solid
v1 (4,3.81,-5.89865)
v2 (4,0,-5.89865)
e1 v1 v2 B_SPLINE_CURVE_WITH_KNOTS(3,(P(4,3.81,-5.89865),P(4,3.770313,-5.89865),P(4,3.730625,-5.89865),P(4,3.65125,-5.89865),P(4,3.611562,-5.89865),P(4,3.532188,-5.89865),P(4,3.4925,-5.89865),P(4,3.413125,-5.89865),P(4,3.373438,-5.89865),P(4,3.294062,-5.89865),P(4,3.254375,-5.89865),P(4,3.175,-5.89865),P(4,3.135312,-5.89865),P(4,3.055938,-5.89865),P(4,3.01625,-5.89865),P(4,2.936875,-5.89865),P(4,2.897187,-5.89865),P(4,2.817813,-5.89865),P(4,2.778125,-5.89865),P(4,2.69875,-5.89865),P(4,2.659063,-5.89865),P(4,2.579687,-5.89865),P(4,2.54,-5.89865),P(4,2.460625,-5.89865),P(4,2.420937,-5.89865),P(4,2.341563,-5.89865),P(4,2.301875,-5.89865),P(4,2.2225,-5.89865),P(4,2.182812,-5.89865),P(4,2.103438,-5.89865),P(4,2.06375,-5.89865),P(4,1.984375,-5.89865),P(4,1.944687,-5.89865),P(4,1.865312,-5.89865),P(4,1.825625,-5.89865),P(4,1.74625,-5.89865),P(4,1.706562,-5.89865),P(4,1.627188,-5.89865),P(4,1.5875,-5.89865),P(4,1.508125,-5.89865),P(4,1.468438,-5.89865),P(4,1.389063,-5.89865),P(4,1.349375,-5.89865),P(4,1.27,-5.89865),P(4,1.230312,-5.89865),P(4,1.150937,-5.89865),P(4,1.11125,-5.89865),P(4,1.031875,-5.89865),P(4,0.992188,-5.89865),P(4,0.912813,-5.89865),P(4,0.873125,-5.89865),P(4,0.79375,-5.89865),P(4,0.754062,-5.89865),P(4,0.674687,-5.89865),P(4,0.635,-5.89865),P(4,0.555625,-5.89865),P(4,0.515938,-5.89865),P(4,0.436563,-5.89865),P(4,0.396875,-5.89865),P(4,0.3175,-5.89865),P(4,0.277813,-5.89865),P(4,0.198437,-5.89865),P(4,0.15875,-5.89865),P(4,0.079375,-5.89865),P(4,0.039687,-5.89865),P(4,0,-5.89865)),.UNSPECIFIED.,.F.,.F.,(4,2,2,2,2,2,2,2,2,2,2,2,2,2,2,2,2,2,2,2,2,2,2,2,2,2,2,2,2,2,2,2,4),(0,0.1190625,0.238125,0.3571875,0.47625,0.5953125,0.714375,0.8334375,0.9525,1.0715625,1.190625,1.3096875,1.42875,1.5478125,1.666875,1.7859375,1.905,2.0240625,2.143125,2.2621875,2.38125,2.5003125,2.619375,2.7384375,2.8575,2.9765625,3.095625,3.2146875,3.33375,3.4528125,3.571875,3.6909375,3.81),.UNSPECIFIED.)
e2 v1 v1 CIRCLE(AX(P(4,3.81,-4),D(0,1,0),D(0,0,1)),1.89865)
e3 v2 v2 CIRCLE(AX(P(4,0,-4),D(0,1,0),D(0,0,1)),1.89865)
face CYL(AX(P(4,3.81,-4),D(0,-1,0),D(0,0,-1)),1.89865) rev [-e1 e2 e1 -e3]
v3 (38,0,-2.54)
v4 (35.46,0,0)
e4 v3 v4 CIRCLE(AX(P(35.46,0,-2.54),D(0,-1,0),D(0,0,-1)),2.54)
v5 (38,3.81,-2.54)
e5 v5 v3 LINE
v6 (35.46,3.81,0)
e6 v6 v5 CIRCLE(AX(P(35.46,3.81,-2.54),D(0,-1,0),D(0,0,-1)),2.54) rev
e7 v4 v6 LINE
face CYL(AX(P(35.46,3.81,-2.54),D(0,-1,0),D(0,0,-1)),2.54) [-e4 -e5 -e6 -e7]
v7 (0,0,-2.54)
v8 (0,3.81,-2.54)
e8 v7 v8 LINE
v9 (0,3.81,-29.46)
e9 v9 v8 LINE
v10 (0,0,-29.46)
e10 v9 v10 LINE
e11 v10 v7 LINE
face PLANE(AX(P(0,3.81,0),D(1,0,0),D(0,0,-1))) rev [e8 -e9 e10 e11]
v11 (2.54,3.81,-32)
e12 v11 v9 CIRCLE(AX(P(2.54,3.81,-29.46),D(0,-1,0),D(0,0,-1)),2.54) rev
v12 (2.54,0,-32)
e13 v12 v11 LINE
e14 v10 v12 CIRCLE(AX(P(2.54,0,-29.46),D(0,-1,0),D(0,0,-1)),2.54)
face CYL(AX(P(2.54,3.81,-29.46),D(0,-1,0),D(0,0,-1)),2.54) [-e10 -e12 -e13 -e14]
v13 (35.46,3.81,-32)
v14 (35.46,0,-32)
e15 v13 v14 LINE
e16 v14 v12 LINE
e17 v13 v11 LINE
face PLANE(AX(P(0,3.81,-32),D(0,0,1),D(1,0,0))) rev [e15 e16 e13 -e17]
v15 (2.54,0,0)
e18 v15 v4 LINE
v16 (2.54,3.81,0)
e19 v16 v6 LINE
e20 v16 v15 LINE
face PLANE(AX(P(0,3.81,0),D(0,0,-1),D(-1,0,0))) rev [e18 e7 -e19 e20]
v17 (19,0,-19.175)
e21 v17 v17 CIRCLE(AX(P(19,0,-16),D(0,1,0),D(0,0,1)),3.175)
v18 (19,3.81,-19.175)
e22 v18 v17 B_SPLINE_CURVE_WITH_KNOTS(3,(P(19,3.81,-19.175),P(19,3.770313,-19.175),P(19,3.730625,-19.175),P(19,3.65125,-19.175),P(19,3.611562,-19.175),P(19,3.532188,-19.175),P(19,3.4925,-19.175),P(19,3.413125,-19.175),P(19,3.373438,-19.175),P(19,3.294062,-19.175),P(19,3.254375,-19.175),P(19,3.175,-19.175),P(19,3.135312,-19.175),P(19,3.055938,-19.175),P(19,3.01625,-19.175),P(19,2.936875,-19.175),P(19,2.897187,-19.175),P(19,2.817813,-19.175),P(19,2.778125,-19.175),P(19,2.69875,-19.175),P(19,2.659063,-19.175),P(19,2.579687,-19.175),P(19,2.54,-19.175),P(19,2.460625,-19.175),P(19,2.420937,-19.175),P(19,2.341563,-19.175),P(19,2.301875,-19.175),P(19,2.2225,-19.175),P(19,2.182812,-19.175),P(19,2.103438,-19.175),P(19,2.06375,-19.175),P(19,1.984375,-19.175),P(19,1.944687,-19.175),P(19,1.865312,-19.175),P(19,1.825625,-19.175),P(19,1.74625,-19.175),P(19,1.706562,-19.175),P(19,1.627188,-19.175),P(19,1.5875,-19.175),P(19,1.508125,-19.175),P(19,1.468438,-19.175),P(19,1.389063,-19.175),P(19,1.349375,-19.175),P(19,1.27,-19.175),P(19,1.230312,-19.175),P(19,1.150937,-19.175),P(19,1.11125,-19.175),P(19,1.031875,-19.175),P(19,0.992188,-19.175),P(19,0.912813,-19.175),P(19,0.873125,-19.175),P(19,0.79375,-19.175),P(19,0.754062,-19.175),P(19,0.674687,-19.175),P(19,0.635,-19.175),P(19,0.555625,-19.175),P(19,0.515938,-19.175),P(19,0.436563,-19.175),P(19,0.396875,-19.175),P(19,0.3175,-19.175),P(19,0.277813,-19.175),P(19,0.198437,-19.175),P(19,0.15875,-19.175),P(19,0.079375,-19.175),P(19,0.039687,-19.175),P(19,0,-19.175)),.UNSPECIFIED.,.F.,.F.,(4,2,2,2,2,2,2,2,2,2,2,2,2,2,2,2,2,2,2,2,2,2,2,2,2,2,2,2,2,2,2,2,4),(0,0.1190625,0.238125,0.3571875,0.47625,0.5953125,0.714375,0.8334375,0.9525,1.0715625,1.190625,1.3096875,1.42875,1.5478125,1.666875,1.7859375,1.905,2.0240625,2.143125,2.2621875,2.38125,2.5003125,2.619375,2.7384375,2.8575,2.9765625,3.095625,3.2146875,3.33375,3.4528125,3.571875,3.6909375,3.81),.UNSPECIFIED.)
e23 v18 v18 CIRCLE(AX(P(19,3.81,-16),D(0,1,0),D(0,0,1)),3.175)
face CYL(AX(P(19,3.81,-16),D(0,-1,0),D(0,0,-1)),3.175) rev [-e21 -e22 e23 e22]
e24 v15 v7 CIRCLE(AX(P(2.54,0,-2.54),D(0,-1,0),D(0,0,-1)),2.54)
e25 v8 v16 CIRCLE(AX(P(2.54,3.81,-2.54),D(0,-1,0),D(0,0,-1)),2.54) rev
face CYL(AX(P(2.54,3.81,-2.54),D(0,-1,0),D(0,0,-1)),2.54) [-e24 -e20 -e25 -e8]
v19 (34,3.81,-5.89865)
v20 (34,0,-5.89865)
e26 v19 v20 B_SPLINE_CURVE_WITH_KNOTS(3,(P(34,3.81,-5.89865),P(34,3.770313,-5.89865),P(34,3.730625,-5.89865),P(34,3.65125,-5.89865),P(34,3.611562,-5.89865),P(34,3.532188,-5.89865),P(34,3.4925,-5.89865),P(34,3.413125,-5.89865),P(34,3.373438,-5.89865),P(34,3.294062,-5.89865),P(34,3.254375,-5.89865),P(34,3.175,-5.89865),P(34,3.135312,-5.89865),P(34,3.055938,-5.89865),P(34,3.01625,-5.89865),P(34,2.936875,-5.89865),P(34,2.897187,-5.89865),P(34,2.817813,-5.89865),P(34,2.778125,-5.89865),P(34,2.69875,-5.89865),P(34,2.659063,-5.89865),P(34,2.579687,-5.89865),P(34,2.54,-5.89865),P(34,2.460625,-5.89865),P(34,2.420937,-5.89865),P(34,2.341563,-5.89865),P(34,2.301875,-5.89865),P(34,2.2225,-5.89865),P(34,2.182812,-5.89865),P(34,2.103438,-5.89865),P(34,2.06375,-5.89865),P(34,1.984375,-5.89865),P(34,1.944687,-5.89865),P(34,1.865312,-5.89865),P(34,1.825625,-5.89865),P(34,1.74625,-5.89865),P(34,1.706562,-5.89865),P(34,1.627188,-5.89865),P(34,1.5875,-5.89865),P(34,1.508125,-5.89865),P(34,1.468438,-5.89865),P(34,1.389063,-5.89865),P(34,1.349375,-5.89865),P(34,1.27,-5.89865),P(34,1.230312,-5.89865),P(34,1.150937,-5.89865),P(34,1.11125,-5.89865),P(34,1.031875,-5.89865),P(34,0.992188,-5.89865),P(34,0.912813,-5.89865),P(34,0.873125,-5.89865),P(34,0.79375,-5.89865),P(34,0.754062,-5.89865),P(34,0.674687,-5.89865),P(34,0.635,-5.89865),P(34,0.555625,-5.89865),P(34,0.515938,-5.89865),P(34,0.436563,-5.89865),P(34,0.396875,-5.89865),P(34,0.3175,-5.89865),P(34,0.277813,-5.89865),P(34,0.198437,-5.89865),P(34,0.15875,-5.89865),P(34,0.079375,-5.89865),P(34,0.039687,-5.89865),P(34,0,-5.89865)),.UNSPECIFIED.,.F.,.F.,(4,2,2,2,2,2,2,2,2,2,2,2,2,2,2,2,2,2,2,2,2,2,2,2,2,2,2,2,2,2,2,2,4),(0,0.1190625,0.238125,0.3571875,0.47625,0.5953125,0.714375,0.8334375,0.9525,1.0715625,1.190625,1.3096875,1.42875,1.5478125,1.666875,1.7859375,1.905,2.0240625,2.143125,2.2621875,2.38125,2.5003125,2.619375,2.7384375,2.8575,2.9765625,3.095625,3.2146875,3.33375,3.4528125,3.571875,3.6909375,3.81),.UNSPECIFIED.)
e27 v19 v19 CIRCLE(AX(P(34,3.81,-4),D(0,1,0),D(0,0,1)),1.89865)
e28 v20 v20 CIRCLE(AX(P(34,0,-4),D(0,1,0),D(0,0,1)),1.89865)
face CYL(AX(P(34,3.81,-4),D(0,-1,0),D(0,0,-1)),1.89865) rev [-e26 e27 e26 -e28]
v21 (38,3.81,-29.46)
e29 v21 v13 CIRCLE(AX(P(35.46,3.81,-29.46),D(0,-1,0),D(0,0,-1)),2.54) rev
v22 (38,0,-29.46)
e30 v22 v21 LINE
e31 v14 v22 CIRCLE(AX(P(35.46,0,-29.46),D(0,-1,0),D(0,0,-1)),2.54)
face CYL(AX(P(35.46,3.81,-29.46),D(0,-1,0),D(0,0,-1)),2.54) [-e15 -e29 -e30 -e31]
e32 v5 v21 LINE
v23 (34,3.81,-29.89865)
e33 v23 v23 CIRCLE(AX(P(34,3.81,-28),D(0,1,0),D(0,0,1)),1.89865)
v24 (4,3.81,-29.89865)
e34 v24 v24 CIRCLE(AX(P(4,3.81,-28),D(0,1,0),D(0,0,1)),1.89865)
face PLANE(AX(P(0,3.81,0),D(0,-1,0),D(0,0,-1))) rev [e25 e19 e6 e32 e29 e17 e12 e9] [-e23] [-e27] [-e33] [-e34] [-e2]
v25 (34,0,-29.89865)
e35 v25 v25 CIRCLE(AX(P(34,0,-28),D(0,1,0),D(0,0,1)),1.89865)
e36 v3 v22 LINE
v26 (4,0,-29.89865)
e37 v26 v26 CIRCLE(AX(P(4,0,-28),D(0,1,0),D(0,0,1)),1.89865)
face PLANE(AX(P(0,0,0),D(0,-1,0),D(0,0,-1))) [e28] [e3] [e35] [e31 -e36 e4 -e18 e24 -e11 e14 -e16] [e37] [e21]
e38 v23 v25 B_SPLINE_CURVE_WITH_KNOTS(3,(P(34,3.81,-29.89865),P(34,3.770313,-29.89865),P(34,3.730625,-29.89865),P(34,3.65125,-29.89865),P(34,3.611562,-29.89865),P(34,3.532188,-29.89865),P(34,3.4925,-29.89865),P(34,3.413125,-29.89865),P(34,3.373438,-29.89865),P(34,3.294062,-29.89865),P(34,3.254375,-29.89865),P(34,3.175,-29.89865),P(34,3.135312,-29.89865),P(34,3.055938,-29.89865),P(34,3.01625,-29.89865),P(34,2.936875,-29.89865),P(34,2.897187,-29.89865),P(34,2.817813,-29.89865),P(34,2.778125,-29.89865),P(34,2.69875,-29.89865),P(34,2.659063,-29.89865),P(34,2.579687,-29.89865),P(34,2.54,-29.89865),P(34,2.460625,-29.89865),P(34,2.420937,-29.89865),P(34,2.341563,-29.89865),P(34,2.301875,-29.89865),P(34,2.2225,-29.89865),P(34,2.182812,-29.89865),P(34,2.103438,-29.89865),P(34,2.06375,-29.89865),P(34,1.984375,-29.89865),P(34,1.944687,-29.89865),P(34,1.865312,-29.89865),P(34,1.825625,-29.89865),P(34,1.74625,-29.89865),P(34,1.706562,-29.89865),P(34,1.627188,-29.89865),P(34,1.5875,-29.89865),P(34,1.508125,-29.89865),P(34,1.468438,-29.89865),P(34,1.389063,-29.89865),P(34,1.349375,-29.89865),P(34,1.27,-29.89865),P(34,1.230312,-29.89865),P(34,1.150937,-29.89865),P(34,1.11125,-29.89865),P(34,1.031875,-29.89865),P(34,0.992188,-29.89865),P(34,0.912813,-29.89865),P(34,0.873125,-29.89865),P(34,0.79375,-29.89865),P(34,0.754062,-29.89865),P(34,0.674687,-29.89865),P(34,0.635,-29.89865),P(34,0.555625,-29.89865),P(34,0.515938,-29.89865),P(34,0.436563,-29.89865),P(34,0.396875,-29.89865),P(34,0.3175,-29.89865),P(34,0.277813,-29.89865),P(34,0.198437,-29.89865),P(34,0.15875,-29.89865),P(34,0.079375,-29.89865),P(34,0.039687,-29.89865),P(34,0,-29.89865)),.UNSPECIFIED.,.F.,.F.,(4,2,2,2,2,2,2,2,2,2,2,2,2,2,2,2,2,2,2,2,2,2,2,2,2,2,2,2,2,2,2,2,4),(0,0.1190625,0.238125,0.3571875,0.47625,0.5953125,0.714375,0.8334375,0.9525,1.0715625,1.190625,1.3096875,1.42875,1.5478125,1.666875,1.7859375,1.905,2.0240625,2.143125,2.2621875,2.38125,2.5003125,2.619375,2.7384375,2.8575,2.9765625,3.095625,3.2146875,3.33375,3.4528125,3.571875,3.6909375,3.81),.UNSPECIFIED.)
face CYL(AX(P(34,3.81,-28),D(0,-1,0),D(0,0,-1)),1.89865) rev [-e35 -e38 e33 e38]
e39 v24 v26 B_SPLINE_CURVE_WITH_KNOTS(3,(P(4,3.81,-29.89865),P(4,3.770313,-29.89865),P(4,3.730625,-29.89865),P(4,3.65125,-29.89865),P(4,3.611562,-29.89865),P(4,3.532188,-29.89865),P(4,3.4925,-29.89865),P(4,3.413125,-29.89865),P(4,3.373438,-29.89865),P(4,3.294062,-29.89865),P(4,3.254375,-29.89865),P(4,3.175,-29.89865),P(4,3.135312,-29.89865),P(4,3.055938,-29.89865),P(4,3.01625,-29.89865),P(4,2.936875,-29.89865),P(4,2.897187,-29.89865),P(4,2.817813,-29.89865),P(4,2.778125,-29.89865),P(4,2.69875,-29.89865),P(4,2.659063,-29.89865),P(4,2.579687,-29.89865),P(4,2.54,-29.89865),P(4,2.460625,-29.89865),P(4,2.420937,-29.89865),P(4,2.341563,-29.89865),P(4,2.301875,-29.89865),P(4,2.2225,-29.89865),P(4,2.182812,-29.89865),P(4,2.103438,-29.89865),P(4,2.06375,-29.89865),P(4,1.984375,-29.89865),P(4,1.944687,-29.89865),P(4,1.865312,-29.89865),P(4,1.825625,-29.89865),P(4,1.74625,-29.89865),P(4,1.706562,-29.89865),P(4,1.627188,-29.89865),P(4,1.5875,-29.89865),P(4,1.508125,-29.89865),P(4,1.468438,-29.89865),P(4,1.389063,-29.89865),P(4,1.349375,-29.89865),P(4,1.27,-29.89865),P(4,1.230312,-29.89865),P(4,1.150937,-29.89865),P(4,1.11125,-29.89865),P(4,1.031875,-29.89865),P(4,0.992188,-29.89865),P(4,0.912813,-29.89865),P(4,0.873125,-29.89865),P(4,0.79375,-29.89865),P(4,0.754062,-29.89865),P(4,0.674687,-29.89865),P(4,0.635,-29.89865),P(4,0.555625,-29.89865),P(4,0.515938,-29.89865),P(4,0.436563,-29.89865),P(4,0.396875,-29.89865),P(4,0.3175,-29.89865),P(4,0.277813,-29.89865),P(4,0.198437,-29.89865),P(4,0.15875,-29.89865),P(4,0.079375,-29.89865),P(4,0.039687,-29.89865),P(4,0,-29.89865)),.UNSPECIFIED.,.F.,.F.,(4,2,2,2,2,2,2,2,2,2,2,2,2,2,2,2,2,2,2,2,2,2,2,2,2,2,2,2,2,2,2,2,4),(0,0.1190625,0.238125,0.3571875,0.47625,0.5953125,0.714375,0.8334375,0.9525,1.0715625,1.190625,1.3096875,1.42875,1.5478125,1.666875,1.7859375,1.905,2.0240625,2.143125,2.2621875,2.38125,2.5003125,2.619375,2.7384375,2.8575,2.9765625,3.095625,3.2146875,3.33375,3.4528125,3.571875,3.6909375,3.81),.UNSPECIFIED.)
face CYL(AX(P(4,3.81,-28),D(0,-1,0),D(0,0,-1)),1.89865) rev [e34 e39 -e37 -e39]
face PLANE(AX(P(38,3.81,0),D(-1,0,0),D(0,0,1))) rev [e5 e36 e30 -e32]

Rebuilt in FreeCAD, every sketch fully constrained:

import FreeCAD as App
import Part
import Sketcher
Q = App.Units.Quantity


def edges_at(feature, points):
    """Names of the edges that pass closest to the given points."""
    edges = feature.Shape.Edges
    near = lambda p: min(range(len(edges)), key=lambda i: edges[i].distToShape(Part.Vertex(*p))[0])
    return sorted({f"Edge{near(p) + 1}" for p in points})


def add_polygon(sketch, points):
    """Adds a closed chain of lines whose ends are joined by coincident constraints."""
    first, n = sketch.GeometryCount, len(points)
    for a, b in zip(points, points[1:] + points[:1]):
        sketch.addGeometry(Part.LineSegment(App.Vector(*a, 0), App.Vector(*b, 0)), False)
    for i in range(n):
        sketch.addConstraint(Sketcher.Constraint("Coincident", first + i, 2, first + (i + 1) % n, 1))

doc = App.newDocument("Part")
body = doc.addObject("PartDesign::Body", "Body")

sketch1 = body.newObject("Sketcher::SketchObject", "Sketch")
sketch1.AttachmentSupport = (doc.getObject("XZ_Plane"), [""])
sketch1.MapMode = "FlatFace"
add_polygon(sketch1, [(0, -32), (0, 0), (38, 0), (38, -32)])
sketch1.addGeometry(Part.Circle(App.Vector(4, -4, 0), App.Vector(0, 0, 1), 1.9), False)
sketch1.addGeometry(Part.Circle(App.Vector(34, -4, 0), App.Vector(0, 0, 1), 1.9), False)
sketch1.addGeometry(Part.Circle(App.Vector(19, -16, 0), App.Vector(0, 0, 1), 3.2), False)
sketch1.addGeometry(Part.Circle(App.Vector(4, -28, 0), App.Vector(0, 0, 1), 1.9), False)
sketch1.addGeometry(Part.Circle(App.Vector(34, -28, 0), App.Vector(0, 0, 1), 1.9), False)
sketch1.addConstraint([
    Sketcher.Constraint("Vertical", 0),
    Sketcher.Constraint("Horizontal", 1),
    Sketcher.Constraint("Vertical", 2),
    Sketcher.Constraint("Horizontal", 3),
    Sketcher.Constraint("Coincident", 0, 2, -1, 1),
    Sketcher.Constraint("Equal", 4, 5),
    Sketcher.Constraint("Equal", 5, 7),
    Sketcher.Constraint("Equal", 7, 8),
    Sketcher.Constraint("Horizontal", 4, 3, 5, 3),
    Sketcher.Constraint("Horizontal", 7, 3, 8, 3),
    Sketcher.Constraint("Vertical", 4, 3, 7, 3),
    Sketcher.Constraint("Vertical", 5, 3, 8, 3),
    Sketcher.Constraint("Diameter", 6, Q("0.25 in")),
    Sketcher.Constraint("Diameter", 4, Q("0.1495 in")),
    Sketcher.Constraint("DistanceX", 1, 1, 1, 2, 38.0),
    Sketcher.Constraint("DistanceY", 0, 1, 0, 2, 32.0),
    Sketcher.Constraint("DistanceX", -1, 1, 4, 3, 4.0),
    Sketcher.Constraint("DistanceY", 4, 3, -1, 1, 4.0),
    Sketcher.Constraint("DistanceX", -1, 1, 5, 3, 34.0),
    Sketcher.Constraint("DistanceX", -1, 1, 6, 3, 19.0),
    Sketcher.Constraint("DistanceY", 6, 3, -1, 1, 16.0),
    Sketcher.Constraint("DistanceY", 7, 3, -1, 1, 28.0),
])
pad1 = body.newObject("PartDesign::Pad", "Pad")
pad1.Profile = sketch1
pad1.Length = Q("0.15 in")
pad1.Reversed = True
doc.recompute()

fillet = body.newObject("PartDesign::Fillet", "Fillet")
fillet.Base = (pad1, edges_at(pad1, [
    (0, 1.905, -32),
    (38, 1.905, -32),
    (38, 1.905, 0),
    (0, 1.905, 0),
]))
fillet.Radius = Q("0.1 in")

doc.recompute()
